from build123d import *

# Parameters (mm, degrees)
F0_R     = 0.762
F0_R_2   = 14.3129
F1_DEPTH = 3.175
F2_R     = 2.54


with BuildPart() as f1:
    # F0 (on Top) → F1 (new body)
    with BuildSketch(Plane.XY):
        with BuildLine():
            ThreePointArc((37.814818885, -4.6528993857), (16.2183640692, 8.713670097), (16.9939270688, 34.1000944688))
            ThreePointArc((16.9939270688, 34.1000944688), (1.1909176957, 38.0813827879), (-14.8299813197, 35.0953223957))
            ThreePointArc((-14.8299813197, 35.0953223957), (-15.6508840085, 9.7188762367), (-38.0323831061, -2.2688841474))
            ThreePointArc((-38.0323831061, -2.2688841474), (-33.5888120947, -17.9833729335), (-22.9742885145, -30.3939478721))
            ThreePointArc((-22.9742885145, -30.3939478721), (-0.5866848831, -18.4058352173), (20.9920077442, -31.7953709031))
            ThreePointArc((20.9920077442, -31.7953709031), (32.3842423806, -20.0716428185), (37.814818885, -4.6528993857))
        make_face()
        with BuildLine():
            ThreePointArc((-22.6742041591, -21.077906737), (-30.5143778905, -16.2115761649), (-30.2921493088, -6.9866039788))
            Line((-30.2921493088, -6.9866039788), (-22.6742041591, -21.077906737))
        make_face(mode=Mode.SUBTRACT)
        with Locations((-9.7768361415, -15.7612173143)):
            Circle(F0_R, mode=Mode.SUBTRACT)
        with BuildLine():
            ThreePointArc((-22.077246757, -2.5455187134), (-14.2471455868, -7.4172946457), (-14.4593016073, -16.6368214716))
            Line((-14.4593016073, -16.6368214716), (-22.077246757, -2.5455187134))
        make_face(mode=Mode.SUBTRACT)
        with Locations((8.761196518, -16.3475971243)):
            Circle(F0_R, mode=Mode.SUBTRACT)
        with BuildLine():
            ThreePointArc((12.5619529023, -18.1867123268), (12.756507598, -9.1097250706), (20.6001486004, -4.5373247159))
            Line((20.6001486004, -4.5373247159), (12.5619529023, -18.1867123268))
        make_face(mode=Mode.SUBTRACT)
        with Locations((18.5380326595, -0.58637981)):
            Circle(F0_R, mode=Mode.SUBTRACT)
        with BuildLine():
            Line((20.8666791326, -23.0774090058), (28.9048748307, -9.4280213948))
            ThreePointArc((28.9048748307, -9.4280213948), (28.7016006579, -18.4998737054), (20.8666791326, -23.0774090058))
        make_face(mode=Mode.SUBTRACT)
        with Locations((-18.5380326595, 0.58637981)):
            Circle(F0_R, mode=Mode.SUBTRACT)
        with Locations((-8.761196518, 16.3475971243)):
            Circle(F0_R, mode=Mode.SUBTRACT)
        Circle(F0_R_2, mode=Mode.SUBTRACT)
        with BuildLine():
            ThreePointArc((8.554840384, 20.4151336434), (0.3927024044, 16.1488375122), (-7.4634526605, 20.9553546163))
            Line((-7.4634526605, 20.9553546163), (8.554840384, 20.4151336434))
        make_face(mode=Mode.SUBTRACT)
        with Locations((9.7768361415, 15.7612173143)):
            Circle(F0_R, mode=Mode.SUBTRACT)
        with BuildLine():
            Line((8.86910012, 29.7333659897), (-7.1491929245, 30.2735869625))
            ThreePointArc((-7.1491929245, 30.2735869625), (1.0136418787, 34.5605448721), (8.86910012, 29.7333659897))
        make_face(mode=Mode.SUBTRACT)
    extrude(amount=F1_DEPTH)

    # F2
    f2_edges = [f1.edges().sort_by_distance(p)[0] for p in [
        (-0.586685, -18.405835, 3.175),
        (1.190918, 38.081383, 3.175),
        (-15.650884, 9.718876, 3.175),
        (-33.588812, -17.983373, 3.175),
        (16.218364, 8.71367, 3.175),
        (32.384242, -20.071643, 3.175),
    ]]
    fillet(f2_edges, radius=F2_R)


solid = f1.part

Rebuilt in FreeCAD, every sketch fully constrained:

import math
import FreeCAD as App
import Part
import Sketcher

V = App.Vector
Q = App.Units.Quantity


def edges_at(feature, points):
    """Names of the edges that pass closest to the given points."""
    edges = feature.Shape.Edges
    near = lambda p: min(range(len(edges)), key=lambda i: edges[i].distToShape(Part.Vertex(*p))[0])
    return sorted({f"Edge{near(p) + 1}" for p in points})

doc = App.newDocument("Part")
body = doc.addObject("PartDesign::Body", "Body")

# Sketch on XY plane
sketch1 = body.newObject("Sketcher::SketchObject", "Sketch")
sketch1.AttachmentSupport = (doc.getObject("XY_Plane"), [""])
sketch1.MapMode = "FlatFace"
sketch1.addGeometry(Part.ArcOfCircle(Part.Circle(V(38.6, 20.7, 0), V(0, 0, 1), 25.4), math.radians(148), math.radians(268)), False)
sketch1.addGeometry(Part.ArcOfCircle(Part.Circle(V(0, 0, 0), V(0, 0, 1), 38.1), math.radians(64), math.radians(113)), False)
sketch1.addGeometry(Part.ArcOfCircle(Part.Circle(V(-37.2, 23.1, 0), V(0, 0, 1), 25.4), math.radians(-92), math.radians(28)), False)
sketch1.addGeometry(Part.ArcOfCircle(Part.Circle(V(0, 0, 0), V(0, 0, 1), 38.1), math.radians(-177), math.radians(-127)), False)
sketch1.addGeometry(Part.ArcOfCircle(Part.Circle(V(-1.4, -43.8, 0), V(0, 0, 1), 25.4), math.radians(28), math.radians(148)), False)
sketch1.addGeometry(Part.ArcOfCircle(Part.Circle(V(0, 0, 0), V(0, 0, 1), 38.1), math.radians(-57), math.radians(-7)), False)
sketch1.addGeometry(Part.LineSegment(V(-30.3, -7, 0), V(-22.7, -21.1, 0)), False)
sketch1.addGeometry(Part.ArcOfCircle(Part.Circle(V(-22.3, -11.8, 0), V(0, 0, 1), 9.3), math.radians(149), math.radians(268)), False)
sketch1.addGeometry(Part.LineSegment(V(-14.5, -16.6, 0), V(-22.1, -2.5, 0)), False)
sketch1.addGeometry(Part.ArcOfCircle(Part.Circle(V(-22.4, -11.8, 0), V(0, 0, 1), 9.3), math.radians(-31), math.radians(88)), False)
sketch1.addGeometry(Part.Circle(V(-9.8, -15.8, 0), V(0, 0, 1), 0.8), False)
sketch1.addGeometry(Part.Circle(V(-18.5, 0.6, 0), V(0, 0, 1), 0.8), False)
sketch1.addGeometry(Part.Circle(V(8.8, -16.3, 0), V(0, 0, 1), 0.8), False)
sketch1.addGeometry(Part.ArcOfCircle(Part.Circle(V(20.7, -13.8, 0), V(0, 0, 1), 9.3), math.radians(-89), math.radians(28)), False)
sketch1.addGeometry(Part.LineSegment(V(20.9, -23.1, 0), V(28.9, -9.4, 0)), False)
sketch1.addGeometry(Part.LineSegment(V(20.6, -4.5, 0), V(12.6, -18.2, 0)), False)
sketch1.addGeometry(Part.ArcOfCircle(Part.Circle(V(20.8, -13.8, 0), V(0, 0, 1), 9.3), math.radians(91), math.radians(208)), False)
sketch1.addGeometry(Part.Circle(V(0, 0, 0), V(0, 0, 1), 14.3), False)
sketch1.addGeometry(Part.Circle(V(18.5, -0.6, 0), V(0, 0, 1), 0.8), False)
sketch1.addGeometry(Part.Circle(V(-8.8, 16.3, 0), V(0, 0, 1), 0.8), False)
sketch1.addGeometry(Part.LineSegment(V(-7.5, 21, 0), V(8.6, 20.4, 0)), False)
sketch1.addGeometry(Part.ArcOfCircle(Part.Circle(V(0.7, 25.5, 0), V(0, 0, 1), 9.3), math.radians(-151), math.radians(-33)), False)
sketch1.addGeometry(Part.Circle(V(9.8, 15.8, 0), V(0, 0, 1), 0.8), False)
sketch1.addGeometry(Part.ArcOfCircle(Part.Circle(V(0.7, 25.2, 0), V(0, 0, 1), 9.3), math.radians(29), math.radians(147)), False)
sketch1.addGeometry(Part.LineSegment(V(8.9, 29.7, 0), V(-7.1, 30.3, 0)), False)
sketch1.addConstraint(Sketcher.Constraint("Coincident", 0, 1, 1, 1))
sketch1.addConstraint(Sketcher.Constraint("Coincident", 1, 2, 2, 2))
sketch1.addConstraint(Sketcher.Constraint("Coincident", 2, 1, 3, 1))
sketch1.addConstraint(Sketcher.Constraint("Coincident", 3, 2, 4, 2))
sketch1.addConstraint(Sketcher.Constraint("Coincident", 4, 1, 5, 1))
sketch1.addConstraint(Sketcher.Constraint("Coincident", 5, 2, 0, 2))
sketch1.addConstraint(Sketcher.Constraint("Coincident", 6, 1, 7, 1))
sketch1.addConstraint(Sketcher.Constraint("Coincident", 7, 2, 6, 2))
sketch1.addConstraint(Sketcher.Constraint("Coincident", 8, 1, 9, 1))
sketch1.addConstraint(Sketcher.Constraint("Coincident", 9, 2, 8, 2))
sketch1.addConstraint(Sketcher.Constraint("Coincident", 13, 1, 14, 1))
sketch1.addConstraint(Sketcher.Constraint("Coincident", 14, 2, 13, 2))
sketch1.addConstraint(Sketcher.Constraint("Coincident", 15, 1, 16, 1))
sketch1.addConstraint(Sketcher.Constraint("Coincident", 16, 2, 15, 2))
sketch1.addConstraint(Sketcher.Constraint("Coincident", 20, 1, 21, 1))
sketch1.addConstraint(Sketcher.Constraint("Coincident", 21, 2, 20, 2))
sketch1.addConstraint(Sketcher.Constraint("Coincident", 23, 1, 24, 1))
sketch1.addConstraint(Sketcher.Constraint("Coincident", 24, 2, 23, 2))
sketch1.addConstraint(Sketcher.Constraint("Coincident", 1, 3, -1, 1))
sketch1.addConstraint(Sketcher.Constraint("Coincident", 3, 3, -1, 1))
sketch1.addConstraint(Sketcher.Constraint("Coincident", 5, 3, -1, 1))
sketch1.addConstraint(Sketcher.Constraint("Coincident", 17, 3, -1, 1))
sketch1.addConstraint(Sketcher.Constraint("Equal", 0, 2))
sketch1.addConstraint(Sketcher.Constraint("Equal", 1, 3))
sketch1.addConstraint(Sketcher.Constraint("Equal", 2, 4))
sketch1.addConstraint(Sketcher.Constraint("Equal", 3, 5))
sketch1.addConstraint(Sketcher.Constraint("Equal", 10, 11))
sketch1.addConstraint(Sketcher.Constraint("Equal", 11, 12))
sketch1.addConstraint(Sketcher.Constraint("Equal", 12, 18))
sketch1.addConstraint(Sketcher.Constraint("Equal", 18, 19))
sketch1.addConstraint(Sketcher.Constraint("Equal", 19, 22))
sketch1.addConstraint(Sketcher.Constraint("Symmetric", 11, 3, 18, 3, -1, 1))
sketch1.addConstraint(Sketcher.Constraint("Symmetric", 12, 3, 19, 3, -1, 1))
sketch1.addConstraint(Sketcher.Constraint("Symmetric", 10, 3, 22, 3, -1, 1))
sketch1.addConstraint(Sketcher.Constraint("Parallel", 6, 8))
sketch1.addConstraint(Sketcher.Constraint("Parallel", 14, 15))
sketch1.addConstraint(Sketcher.Constraint("Parallel", 20, 24))
sketch1.addConstraint(Sketcher.Constraint("Equal", 6, 8))
sketch1.addConstraint(Sketcher.Constraint("Equal", 14, 15))
sketch1.addConstraint(Sketcher.Constraint("Equal", 20, 24))
sketch1.addConstraint(Sketcher.Constraint("Radius", 0, Q("1 in")))
sketch1.addConstraint(Sketcher.Constraint("Radius", 1, Q("1.5 in")))
sketch1.addConstraint(Sketcher.Constraint("Diameter", 10, Q("0.06 in")))
sketch1.addConstraint(Sketcher.Constraint("Diameter", 17, Q("1.127 in")))
sketch1.addConstraint(Sketcher.Constraint("Distance", 20, Q("0.631 in")))
sketch1.addConstraint(Sketcher.Constraint("Radius", 13, 9.296909))
sketch1.addConstraint(Sketcher.Constraint("Radius", 16, 9.285821))
sketch1.addConstraint(Sketcher.Constraint("Radius", 7, 9.290567))
sketch1.addConstraint(Sketcher.Constraint("Radius", 9, 9.302374))
sketch1.addConstraint(Sketcher.Constraint("Radius", 21, 9.343693))
sketch1.addConstraint(Sketcher.Constraint("Radius", 23, 9.321955))
sketch1.addConstraint(Sketcher.Constraint("DistanceY", 5, 2, -1, 1, 4.652899))
sketch1.addConstraint(Sketcher.Constraint("DistanceX", 8, 1, -1, 1, 14.459302))
sketch1.addConstraint(Sketcher.Constraint("DistanceX", -1, 1, 23, 1, 8.8691))
sketch1.addConstraint(Sketcher.Constraint("DistanceY", 7, 3, 2, 3, 34.911699))
sketch1.addConstraint(Sketcher.Constraint("DistanceX", 9, 3, 7, 3, 0.088602))
sketch1.addConstraint(Sketcher.Constraint("DistanceY", 9, 3, 7, 3, 0.047899))
sketch1.addConstraint(Sketcher.Constraint("DistanceX", 18, 3, 16, 3, 2.219898))
sketch1.addConstraint(Sketcher.Constraint("DistanceX", 23, 3, 22, 3, 9.077401))
sketch1.addConstraint(Sketcher.Constraint("DistanceY", 21, 3, 1, 2, 9.608101))
sketch1.addConstraint(Sketcher.Constraint("DistanceY", 9, 2, 11, 3, 3.131899))
sketch1.addConstraint(Sketcher.Constraint("DistanceX", 21, 3, 21, 2, 7.847199))
sketch1.addConstraint(Sketcher.Constraint("DistanceY", 4, 3, -1, 1, 43.792942))
sketch1.addConstraint(Sketcher.Constraint("DistanceY", -1, 1, 11, 3, 0.58638))
sketch1.addConstraint(Sketcher.Constraint("DistanceX", -1, 1, 16, 3, 20.757931))
sketch1.addConstraint(Sketcher.Constraint("DistanceX", -1, 1, 21, 3, 0.707642))
sketch1.addConstraint(Sketcher.Constraint("DistanceY", -1, 1, 21, 3, 25.487221))
sketch1.addConstraint(Sketcher.Constraint("DistanceX", 3, 2, -1, 1, 22.974289))
sketch1.addConstraint(Sketcher.Constraint("DistanceX", 6, 1, -1, 1, 30.292149))
sketch1.addConstraint(Sketcher.Constraint("DistanceY", 8, 1, -1, 1, 16.636821))
sketch1.addConstraint(Sketcher.Constraint("DistanceX", -1, 1, 13, 1, 20.866679))
sketch1.addConstraint(Sketcher.Constraint("DistanceY", 13, 1, -1, 1, 23.077409))
sketch1.addConstraint(Sketcher.Constraint("DistanceY", 14, 2, -1, 1, 9.428021))
sketch1.addConstraint(Sketcher.Constraint("DistanceX", -1, 1, 15, 1, 20.600149))
sketch1.addConstraint(Sketcher.Constraint("DistanceY", 0, 3, 2, 3, 2.383242))
sketch1.addConstraint(Sketcher.Constraint("DistanceY", 12, 3, 10, 3, 0.58638))
sketch1.addConstraint(Sketcher.Constraint("DistanceY", 12, 3, 13, 3, 2.56543))
sketch1.addConstraint(Sketcher.Constraint("DistanceX", 19, 3, 21, 3, 9.468838))
sketch1.addConstraint(Sketcher.Constraint("DistanceY", 19, 3, 23, 3, 8.896289))
sketch1.addConstraint(Sketcher.Constraint("DistanceY", 16, 3, -1, 1, 13.821805))
pad1 = body.newObject("PartDesign::Pad", "Pad")
pad1.Profile = sketch1
pad1.Length = Q("0.125 in")
doc.recompute()

fillet = body.newObject("PartDesign::Fillet", "Fillet")
fillet.Base = (pad1, edges_at(pad1, [
    (-0.587, -18.406, 3.175),
    (1.191, 38.081, 3.175),
    (-15.651, 9.719, 3.175),
    (-33.589, -17.983, 3.175),
    (16.218, 8.714, 3.175),
    (32.384, -20.072, 3.175),
]))
fillet.Radius = Q("0.1 in")

doc.recompute()
